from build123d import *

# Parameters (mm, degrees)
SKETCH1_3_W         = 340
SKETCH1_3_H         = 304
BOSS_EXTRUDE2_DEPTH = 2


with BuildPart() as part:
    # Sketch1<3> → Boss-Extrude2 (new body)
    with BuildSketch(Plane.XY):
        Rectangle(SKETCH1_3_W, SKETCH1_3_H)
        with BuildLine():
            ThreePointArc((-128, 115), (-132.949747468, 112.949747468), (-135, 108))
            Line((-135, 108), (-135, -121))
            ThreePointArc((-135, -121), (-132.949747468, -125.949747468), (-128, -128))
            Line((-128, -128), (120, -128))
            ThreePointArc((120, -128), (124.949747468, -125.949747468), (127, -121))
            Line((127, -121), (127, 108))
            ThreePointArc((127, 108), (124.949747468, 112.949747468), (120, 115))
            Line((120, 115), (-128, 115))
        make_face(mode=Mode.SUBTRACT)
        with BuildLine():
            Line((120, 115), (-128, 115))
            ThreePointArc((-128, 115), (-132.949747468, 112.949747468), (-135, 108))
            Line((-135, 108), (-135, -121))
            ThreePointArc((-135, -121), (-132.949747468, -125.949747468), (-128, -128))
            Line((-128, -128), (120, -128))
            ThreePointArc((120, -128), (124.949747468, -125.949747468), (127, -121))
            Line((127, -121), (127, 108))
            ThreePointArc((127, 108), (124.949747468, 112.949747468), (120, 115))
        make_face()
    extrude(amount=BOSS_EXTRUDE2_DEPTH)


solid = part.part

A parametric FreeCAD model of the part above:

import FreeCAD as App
import Part
import Sketcher
from FreeCAD import Vector


def add_polygon(sketch, points):
    """Adds a closed chain of lines whose ends are joined by coincident constraints."""
    first, n = sketch.GeometryCount, len(points)
    for a, b in zip(points, points[1:] + points[:1]):
        sketch.addGeometry(Part.LineSegment(App.Vector(*a, 0), App.Vector(*b, 0)), False)
    for i in range(n):
        sketch.addConstraint(Sketcher.Constraint("Coincident", first + i, 2, first + (i + 1) % n, 1))

doc = App.newDocument("Part")
body = doc.addObject("PartDesign::Body", "Body")

# Sketch on XY plane
sketch1 = doc.addObject("Sketcher::SketchObject", "Sketch")
body.addObject(sketch1)
sketch1.AttachmentSupport = (doc.XY_Plane, [""])
sketch1.MapMode = "FlatFace"
add_polygon(sketch1, [(-170, 152), (-170, -152), (170, -152), (170, 152)])  # lines 0-3
sketch1.addConstraint([
    Sketcher.Constraint("Vertical", 0),
    Sketcher.Constraint("Horizontal", 1),
    Sketcher.Constraint("Vertical", 2),
    Sketcher.Constraint("Horizontal", 3),
    Sketcher.Constraint("Symmetric", 0, 2, 2, 2, -1, 1),
    Sketcher.Constraint("DistanceX", 1, 1, 1, 2, 340.0),
    Sketcher.Constraint("DistanceY", 0, 2, 0, 1, 304.0),
])
pad1 = doc.addObject("PartDesign::Pad", "Pad")
body.addObject(pad1)
pad1.Profile = sketch1
pad1.Length = 2

doc.recompute()
